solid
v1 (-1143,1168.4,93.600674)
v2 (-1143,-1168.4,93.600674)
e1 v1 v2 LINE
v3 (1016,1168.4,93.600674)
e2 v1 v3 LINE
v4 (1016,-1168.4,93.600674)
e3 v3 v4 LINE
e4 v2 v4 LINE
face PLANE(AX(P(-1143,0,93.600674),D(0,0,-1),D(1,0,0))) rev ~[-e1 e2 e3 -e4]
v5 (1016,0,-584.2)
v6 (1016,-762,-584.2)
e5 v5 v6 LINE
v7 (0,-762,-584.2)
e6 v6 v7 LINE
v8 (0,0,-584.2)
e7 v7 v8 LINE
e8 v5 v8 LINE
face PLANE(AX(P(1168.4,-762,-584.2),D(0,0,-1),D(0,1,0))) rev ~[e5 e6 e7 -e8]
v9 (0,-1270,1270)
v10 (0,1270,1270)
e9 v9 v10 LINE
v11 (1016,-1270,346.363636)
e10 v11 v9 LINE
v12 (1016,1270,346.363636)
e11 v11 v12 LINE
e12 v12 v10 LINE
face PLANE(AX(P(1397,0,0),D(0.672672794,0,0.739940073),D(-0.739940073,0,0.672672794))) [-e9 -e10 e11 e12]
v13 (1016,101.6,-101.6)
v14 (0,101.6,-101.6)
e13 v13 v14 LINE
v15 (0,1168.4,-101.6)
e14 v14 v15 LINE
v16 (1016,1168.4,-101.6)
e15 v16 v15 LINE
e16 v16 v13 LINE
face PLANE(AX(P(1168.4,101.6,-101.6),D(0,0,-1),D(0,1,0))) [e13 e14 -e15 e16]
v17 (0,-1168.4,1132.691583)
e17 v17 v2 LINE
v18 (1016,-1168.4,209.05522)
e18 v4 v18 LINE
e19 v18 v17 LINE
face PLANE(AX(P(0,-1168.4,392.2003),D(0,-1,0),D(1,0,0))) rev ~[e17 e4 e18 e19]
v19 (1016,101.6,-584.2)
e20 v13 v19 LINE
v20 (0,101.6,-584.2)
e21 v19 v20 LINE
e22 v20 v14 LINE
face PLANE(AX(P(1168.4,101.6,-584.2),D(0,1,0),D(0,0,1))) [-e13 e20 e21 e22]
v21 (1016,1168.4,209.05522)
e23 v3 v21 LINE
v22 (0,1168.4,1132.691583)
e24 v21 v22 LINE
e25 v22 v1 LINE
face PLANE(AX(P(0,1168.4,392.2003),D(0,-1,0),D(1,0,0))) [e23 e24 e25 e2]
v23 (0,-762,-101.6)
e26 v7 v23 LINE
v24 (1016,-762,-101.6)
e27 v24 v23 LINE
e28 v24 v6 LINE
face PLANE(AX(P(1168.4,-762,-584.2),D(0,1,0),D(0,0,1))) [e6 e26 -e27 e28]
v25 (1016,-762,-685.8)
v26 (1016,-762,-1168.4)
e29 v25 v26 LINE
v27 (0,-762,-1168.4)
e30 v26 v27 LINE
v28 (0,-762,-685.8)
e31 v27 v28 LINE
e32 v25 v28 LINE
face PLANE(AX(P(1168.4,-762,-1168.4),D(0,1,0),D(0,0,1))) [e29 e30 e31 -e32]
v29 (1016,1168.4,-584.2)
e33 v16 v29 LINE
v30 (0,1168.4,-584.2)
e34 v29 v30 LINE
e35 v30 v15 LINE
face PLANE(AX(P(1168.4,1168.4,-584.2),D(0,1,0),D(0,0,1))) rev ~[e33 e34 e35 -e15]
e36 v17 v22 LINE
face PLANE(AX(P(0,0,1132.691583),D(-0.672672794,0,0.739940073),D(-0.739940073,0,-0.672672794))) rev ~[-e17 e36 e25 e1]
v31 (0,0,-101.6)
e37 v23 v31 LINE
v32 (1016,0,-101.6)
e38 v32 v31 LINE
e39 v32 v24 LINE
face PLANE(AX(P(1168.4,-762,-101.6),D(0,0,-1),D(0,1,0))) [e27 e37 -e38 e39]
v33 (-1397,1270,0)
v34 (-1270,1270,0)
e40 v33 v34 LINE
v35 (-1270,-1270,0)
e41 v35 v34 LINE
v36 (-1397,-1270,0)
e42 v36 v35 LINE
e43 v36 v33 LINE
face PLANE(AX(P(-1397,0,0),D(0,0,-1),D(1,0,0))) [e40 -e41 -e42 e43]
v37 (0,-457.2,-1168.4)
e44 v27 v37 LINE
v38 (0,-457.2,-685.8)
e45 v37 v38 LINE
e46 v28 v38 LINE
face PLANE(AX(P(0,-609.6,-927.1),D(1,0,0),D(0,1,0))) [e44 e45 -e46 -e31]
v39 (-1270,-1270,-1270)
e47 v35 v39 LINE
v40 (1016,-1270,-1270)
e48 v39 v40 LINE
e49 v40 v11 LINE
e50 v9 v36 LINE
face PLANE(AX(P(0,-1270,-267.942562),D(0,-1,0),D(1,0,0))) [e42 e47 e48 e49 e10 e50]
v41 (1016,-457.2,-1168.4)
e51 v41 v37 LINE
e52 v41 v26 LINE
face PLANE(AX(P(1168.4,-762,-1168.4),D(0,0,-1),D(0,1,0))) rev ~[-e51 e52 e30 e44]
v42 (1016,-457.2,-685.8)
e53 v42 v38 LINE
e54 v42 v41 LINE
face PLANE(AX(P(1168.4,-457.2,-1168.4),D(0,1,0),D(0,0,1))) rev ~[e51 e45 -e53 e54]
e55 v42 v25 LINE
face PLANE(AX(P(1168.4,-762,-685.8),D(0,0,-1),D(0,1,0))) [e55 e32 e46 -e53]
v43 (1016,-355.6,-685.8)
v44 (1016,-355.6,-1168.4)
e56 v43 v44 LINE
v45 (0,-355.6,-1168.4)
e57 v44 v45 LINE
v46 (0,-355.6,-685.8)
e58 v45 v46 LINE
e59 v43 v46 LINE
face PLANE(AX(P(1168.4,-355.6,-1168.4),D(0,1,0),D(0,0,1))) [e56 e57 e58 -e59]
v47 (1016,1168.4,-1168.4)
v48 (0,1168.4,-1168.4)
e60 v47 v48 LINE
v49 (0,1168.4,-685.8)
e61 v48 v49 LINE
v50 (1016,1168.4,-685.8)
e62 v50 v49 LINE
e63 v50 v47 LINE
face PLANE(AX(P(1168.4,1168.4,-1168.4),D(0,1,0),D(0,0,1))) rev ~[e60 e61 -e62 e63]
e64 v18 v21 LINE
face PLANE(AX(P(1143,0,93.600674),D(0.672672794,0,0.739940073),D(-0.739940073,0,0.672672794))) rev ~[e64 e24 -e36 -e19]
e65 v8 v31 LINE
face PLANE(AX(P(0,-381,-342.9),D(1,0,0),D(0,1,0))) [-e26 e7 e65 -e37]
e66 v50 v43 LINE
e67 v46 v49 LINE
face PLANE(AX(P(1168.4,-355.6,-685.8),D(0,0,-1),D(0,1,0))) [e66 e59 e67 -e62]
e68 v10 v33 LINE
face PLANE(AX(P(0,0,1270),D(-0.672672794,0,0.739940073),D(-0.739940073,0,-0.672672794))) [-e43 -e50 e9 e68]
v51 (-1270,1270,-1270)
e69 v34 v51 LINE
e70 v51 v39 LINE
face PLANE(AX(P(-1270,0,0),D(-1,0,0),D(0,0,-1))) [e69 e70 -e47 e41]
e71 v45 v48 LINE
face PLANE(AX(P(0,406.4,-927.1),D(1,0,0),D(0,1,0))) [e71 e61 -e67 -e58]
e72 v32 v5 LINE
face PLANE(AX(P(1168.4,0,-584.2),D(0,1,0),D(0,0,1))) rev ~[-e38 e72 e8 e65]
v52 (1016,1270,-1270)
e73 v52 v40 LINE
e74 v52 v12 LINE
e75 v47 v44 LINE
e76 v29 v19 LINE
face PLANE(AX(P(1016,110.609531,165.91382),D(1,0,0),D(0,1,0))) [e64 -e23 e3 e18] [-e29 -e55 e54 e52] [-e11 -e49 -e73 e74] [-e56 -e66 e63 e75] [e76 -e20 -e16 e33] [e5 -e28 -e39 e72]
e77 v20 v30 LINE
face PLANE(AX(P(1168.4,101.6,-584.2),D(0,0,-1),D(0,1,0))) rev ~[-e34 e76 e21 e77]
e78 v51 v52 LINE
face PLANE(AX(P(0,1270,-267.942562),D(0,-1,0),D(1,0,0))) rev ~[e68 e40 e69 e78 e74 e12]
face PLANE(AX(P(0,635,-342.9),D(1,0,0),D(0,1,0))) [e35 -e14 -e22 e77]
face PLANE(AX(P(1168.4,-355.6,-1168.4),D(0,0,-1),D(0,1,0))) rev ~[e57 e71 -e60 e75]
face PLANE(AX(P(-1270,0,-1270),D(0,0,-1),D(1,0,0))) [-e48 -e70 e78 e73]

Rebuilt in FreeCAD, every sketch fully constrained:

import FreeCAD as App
import Part
import Sketcher

V = App.Vector
Q = App.Units.Quantity

doc = App.newDocument("Part")
body = doc.addObject("PartDesign::Body", "Body")

# Sketch on XZ plane
sketch1 = body.newObject("Sketcher::SketchObject", "Sketch")
sketch1.AttachmentSupport = (doc.getObject("XZ_Plane"), [""])
sketch1.MapMode = "FlatFace"
sketch1.addGeometry(Part.LineSegment(V(-1270, 0, 0), V(-1270, -1270, 0)), False)
sketch1.addGeometry(Part.LineSegment(V(-1270, -1270, 0), V(1270, -1270, 0)), False)
sketch1.addGeometry(Part.LineSegment(V(1270, -1270, 0), V(1270, 0, 0)), False)
sketch1.addGeometry(Part.LineSegment(V(1270, 0, 0), V(1397, 0, 0)), False)
sketch1.addGeometry(Part.LineSegment(V(1397, 0, 0), V(0, 1270, 0)), False)
sketch1.addGeometry(Part.LineSegment(V(0, 1270, 0), V(-1397, 0, 0)), False)
sketch1.addGeometry(Part.LineSegment(V(-1397, 0, 0), V(-1270, 0, 0)), False)
sketch1.addConstraint(Sketcher.Constraint("Coincident", 0, 2, 1, 1))
sketch1.addConstraint(Sketcher.Constraint("Coincident", 1, 2, 2, 1))
sketch1.addConstraint(Sketcher.Constraint("Coincident", 2, 2, 3, 1))
sketch1.addConstraint(Sketcher.Constraint("Coincident", 3, 2, 4, 1))
sketch1.addConstraint(Sketcher.Constraint("Coincident", 4, 2, 5, 1))
sketch1.addConstraint(Sketcher.Constraint("Coincident", 5, 2, 6, 1))
sketch1.addConstraint(Sketcher.Constraint("Coincident", 6, 2, 0, 1))
sketch1.addConstraint(Sketcher.Constraint("Vertical", 0))
sketch1.addConstraint(Sketcher.Constraint("Horizontal", 1))
sketch1.addConstraint(Sketcher.Constraint("Vertical", 2))
sketch1.addConstraint(Sketcher.Constraint("Horizontal", 3))
sketch1.addConstraint(Sketcher.Constraint("Horizontal", 6))
sketch1.addConstraint(Sketcher.Constraint("Symmetric", 3, 2, 5, 2, -1, 1))
sketch1.addConstraint(Sketcher.Constraint("Symmetric", 2, 2, 6, 2, -2))
sketch1.addConstraint(Sketcher.Constraint("PointOnObject", 4, 2, -2))
sketch1.addConstraint(Sketcher.Constraint("DistanceX", 1, 1, 1, 2, Q("100 in")))
sketch1.addConstraint(Sketcher.Constraint("DistanceX", 3, 1, 3, 2, Q("5 in")))
sketch1.addConstraint(Sketcher.Constraint("DistanceY", 0, 2, 0, 1, Q("50 in")))
sketch1.addConstraint(Sketcher.Constraint("DistanceY", -1, 1, 4, 2, Q("50 in")))
pad1 = body.newObject("PartDesign::Pad", "Pad")
pad1.Profile = sketch1
pad1.Length = Q("100 in")
pad1.Midplane = True

# Sketch on XZ plane
sketch2 = body.newObject("Sketcher::SketchObject", "Sketch001")
sketch2.AttachmentSupport = (doc.getObject("XZ_Plane"), [""])
sketch2.MapMode = "FlatFace"
sketch2.addGeometry(Part.LineSegment(V(0, 1133, 0), V(-1143, 94, 0)), False)
sketch2.addGeometry(Part.LineSegment(V(-1143, 94, 0), V(1143, 94, 0)), False)
sketch2.addGeometry(Part.LineSegment(V(1143, 94, 0), V(0, 1133, 0)), False)
sketch2.addConstraint(Sketcher.Constraint("Coincident", 0, 2, 1, 1))
sketch2.addConstraint(Sketcher.Constraint("Coincident", 1, 2, 2, 1))
sketch2.addConstraint(Sketcher.Constraint("Coincident", 2, 2, 0, 1))
sketch2.addConstraint(Sketcher.Constraint("Horizontal", 1))
sketch2.addConstraint(Sketcher.Constraint("PointOnObject", 2, 2, -2))
sketch2.addConstraint(Sketcher.Constraint("Equal", 0, 2))
sketch2.addConstraint(Sketcher.Constraint("DistanceX", 1, 1, 1, 2, Q("90 in")))
sketch2.addConstraint(Sketcher.Constraint("Distance", 0, Q("1544.719689 mm")))
sketch2.addConstraint(Sketcher.Constraint("DistanceY", -1, 1, 0, 2, Q("93.600674 mm")))
pocket1 = body.newObject("PartDesign::Pocket", "Pocket")
pocket1.Profile = sketch2
pocket1.Length = Q("92 in")
pocket1.Midplane = True

# Sketch on YZ plane
sketch3 = body.newObject("Sketcher::SketchObject", "Sketch002")
sketch3.AttachmentSupport = (doc.getObject("YZ_Plane"), [""])
sketch3.MapMode = "FlatFace"
sketch3.AttachmentOffset = App.Placement(V(0, 0, 46 * 25.4), App.Rotation())
sketch3.addGeometry(Part.LineSegment(V(102, -102, 0), V(102, -584, 0)), False)
sketch3.addGeometry(Part.LineSegment(V(102, -584, 0), V(1168, -584, 0)), False)
sketch3.addGeometry(Part.LineSegment(V(1168, -584, 0), V(1168, -102, 0)), False)
sketch3.addGeometry(Part.LineSegment(V(1168, -102, 0), V(102, -102, 0)), False)
sketch3.addGeometry(Part.LineSegment(V(-762, -102, 0), V(-762, -584, 0)), False)
sketch3.addGeometry(Part.LineSegment(V(-762, -584, 0), V(0, -584, 0)), False)
sketch3.addGeometry(Part.LineSegment(V(0, -584, 0), V(0, -102, 0)), False)
sketch3.addGeometry(Part.LineSegment(V(0, -102, 0), V(-762, -102, 0)), False)
sketch3.addGeometry(Part.LineSegment(V(-762, -686, 0), V(-762, -1168, 0)), False)
sketch3.addGeometry(Part.LineSegment(V(-762, -1168, 0), V(-457, -1168, 0)), False)
sketch3.addGeometry(Part.LineSegment(V(-457, -1168, 0), V(-457, -686, 0)), False)
sketch3.addGeometry(Part.LineSegment(V(-457, -686, 0), V(-762, -686, 0)), False)
sketch3.addGeometry(Part.LineSegment(V(-356, -686, 0), V(-356, -1168, 0)), False)
sketch3.addGeometry(Part.LineSegment(V(-356, -1168, 0), V(1168, -1168, 0)), False)
sketch3.addGeometry(Part.LineSegment(V(1168, -1168, 0), V(1168, -686, 0)), False)
sketch3.addGeometry(Part.LineSegment(V(1168, -686, 0), V(-356, -686, 0)), False)
sketch3.addConstraint(Sketcher.Constraint("Coincident", 0, 2, 1, 1))
sketch3.addConstraint(Sketcher.Constraint("Coincident", 1, 2, 2, 1))
sketch3.addConstraint(Sketcher.Constraint("Coincident", 2, 2, 3, 1))
sketch3.addConstraint(Sketcher.Constraint("Coincident", 3, 2, 0, 1))
sketch3.addConstraint(Sketcher.Constraint("Coincident", 4, 2, 5, 1))
sketch3.addConstraint(Sketcher.Constraint("Coincident", 5, 2, 6, 1))
sketch3.addConstraint(Sketcher.Constraint("Coincident", 6, 2, 7, 1))
sketch3.addConstraint(Sketcher.Constraint("Coincident", 7, 2, 4, 1))
sketch3.addConstraint(Sketcher.Constraint("Coincident", 8, 2, 9, 1))
sketch3.addConstraint(Sketcher.Constraint("Coincident", 9, 2, 10, 1))
sketch3.addConstraint(Sketcher.Constraint("Coincident", 10, 2, 11, 1))
sketch3.addConstraint(Sketcher.Constraint("Coincident", 11, 2, 8, 1))
sketch3.addConstraint(Sketcher.Constraint("Coincident", 12, 2, 13, 1))
sketch3.addConstraint(Sketcher.Constraint("Coincident", 13, 2, 14, 1))
sketch3.addConstraint(Sketcher.Constraint("Coincident", 14, 2, 15, 1))
sketch3.addConstraint(Sketcher.Constraint("Coincident", 15, 2, 12, 1))
sketch3.addConstraint(Sketcher.Constraint("Vertical", 0))
sketch3.addConstraint(Sketcher.Constraint("Horizontal", 1))
sketch3.addConstraint(Sketcher.Constraint("Vertical", 2))
sketch3.addConstraint(Sketcher.Constraint("Horizontal", 3))
sketch3.addConstraint(Sketcher.Constraint("Vertical", 4))
sketch3.addConstraint(Sketcher.Constraint("Horizontal", 5))
sketch3.addConstraint(Sketcher.Constraint("Vertical", 6))
sketch3.addConstraint(Sketcher.Constraint("Horizontal", 7))
sketch3.addConstraint(Sketcher.Constraint("Vertical", 8))
sketch3.addConstraint(Sketcher.Constraint("Horizontal", 9))
sketch3.addConstraint(Sketcher.Constraint("Vertical", 10))
sketch3.addConstraint(Sketcher.Constraint("Horizontal", 11))
sketch3.addConstraint(Sketcher.Constraint("Vertical", 12))
sketch3.addConstraint(Sketcher.Constraint("Horizontal", 13))
sketch3.addConstraint(Sketcher.Constraint("Vertical", 14))
sketch3.addConstraint(Sketcher.Constraint("Horizontal", 15))
sketch3.addConstraint(Sketcher.Constraint("PointOnObject", 5, 2, -2))
sketch3.addConstraint(Sketcher.Constraint("Horizontal", 1, 2, 4, 2))
sketch3.addConstraint(Sketcher.Constraint("Horizontal", 3, 2, 6, 2))
sketch3.addConstraint(Sketcher.Constraint("Horizontal", 9, 2, 12, 2))
sketch3.addConstraint(Sketcher.Constraint("Horizontal", 11, 2, 14, 2))
sketch3.addConstraint(Sketcher.Constraint("Vertical", 7, 2, 8, 2))
sketch3.addConstraint(Sketcher.Constraint("Vertical", 2, 2, 13, 2))
sketch3.addConstraint(Sketcher.Constraint("Equal", 6, 8))
sketch3.addConstraint(Sketcher.Constraint("DistanceX", 1, 1, 1, 2, Q("42 in")))
sketch3.addConstraint(Sketcher.Constraint("DistanceX", 5, 1, 5, 2, Q("30 in")))
sketch3.addConstraint(Sketcher.Constraint("DistanceX", 9, 1, 9, 2, Q("12 in")))
sketch3.addConstraint(Sketcher.Constraint("DistanceX", 13, 1, 13, 2, Q("60 in")))
sketch3.addConstraint(Sketcher.Constraint("DistanceY", 0, 2, 0, 1, Q("19 in")))
sketch3.addConstraint(Sketcher.Constraint("DistanceX", -1, 1, 0, 2, Q("4 in")))
sketch3.addConstraint(Sketcher.Constraint("DistanceY", 0, 2, -1, 1, Q("23 in")))
sketch3.addConstraint(Sketcher.Constraint("DistanceY", 8, 2, -1, 1, Q("46 in")))
pocket2 = body.newObject("PartDesign::Pocket", "Pocket001")
pocket2.Profile = sketch3
pocket2.Length = Q("46 in")

# Sketch on YZ plane
sketch4 = body.newObject("Sketcher::SketchObject", "Sketch003")
sketch4.AttachmentSupport = (doc.getObject("YZ_Plane"), [""])
sketch4.MapMode = "FlatFace"
sketch4.AttachmentOffset = App.Placement(V(0, 0, 50 * 25.4), App.Rotation())
sketch4.addGeometry(Part.LineSegment(V(-1470, 1906, 0), V(-1470, -1574, 0)), False)
sketch4.addGeometry(Part.LineSegment(V(-1470, -1574, 0), V(1691, -1574, 0)), False)
sketch4.addGeometry(Part.LineSegment(V(1691, -1574, 0), V(1691, 1906, 0)), False)
sketch4.addGeometry(Part.LineSegment(V(1691, 1906, 0), V(-1470, 1906, 0)), False)
sketch4.addConstraint(Sketcher.Constraint("Coincident", 0, 2, 1, 1))
sketch4.addConstraint(Sketcher.Constraint("Coincident", 1, 2, 2, 1))
sketch4.addConstraint(Sketcher.Constraint("Coincident", 2, 2, 3, 1))
sketch4.addConstraint(Sketcher.Constraint("Coincident", 3, 2, 0, 1))
sketch4.addConstraint(Sketcher.Constraint("Vertical", 0))
sketch4.addConstraint(Sketcher.Constraint("Horizontal", 1))
sketch4.addConstraint(Sketcher.Constraint("Vertical", 2))
sketch4.addConstraint(Sketcher.Constraint("Horizontal", 3))
sketch4.addConstraint(Sketcher.Constraint("DistanceY", 0, 2, 0, 1, Q("3479.454041 mm")))
sketch4.addConstraint(Sketcher.Constraint("DistanceY", 0, 2, -1, 1, Q("1573.8132 mm")))
sketch4.addConstraint(Sketcher.Constraint("DistanceX", 1, 1, 1, 2, Q("3160.266876 mm")))
sketch4.addConstraint(Sketcher.Constraint("DistanceX", -1, 1, 1, 2, Q("1690.74297 mm")))
pocket3 = body.newObject("PartDesign::Pocket", "Pocket002")
pocket3.Profile = sketch4
pocket3.Length = Q("20 in")
pocket3.Midplane = True

doc.recompute()
